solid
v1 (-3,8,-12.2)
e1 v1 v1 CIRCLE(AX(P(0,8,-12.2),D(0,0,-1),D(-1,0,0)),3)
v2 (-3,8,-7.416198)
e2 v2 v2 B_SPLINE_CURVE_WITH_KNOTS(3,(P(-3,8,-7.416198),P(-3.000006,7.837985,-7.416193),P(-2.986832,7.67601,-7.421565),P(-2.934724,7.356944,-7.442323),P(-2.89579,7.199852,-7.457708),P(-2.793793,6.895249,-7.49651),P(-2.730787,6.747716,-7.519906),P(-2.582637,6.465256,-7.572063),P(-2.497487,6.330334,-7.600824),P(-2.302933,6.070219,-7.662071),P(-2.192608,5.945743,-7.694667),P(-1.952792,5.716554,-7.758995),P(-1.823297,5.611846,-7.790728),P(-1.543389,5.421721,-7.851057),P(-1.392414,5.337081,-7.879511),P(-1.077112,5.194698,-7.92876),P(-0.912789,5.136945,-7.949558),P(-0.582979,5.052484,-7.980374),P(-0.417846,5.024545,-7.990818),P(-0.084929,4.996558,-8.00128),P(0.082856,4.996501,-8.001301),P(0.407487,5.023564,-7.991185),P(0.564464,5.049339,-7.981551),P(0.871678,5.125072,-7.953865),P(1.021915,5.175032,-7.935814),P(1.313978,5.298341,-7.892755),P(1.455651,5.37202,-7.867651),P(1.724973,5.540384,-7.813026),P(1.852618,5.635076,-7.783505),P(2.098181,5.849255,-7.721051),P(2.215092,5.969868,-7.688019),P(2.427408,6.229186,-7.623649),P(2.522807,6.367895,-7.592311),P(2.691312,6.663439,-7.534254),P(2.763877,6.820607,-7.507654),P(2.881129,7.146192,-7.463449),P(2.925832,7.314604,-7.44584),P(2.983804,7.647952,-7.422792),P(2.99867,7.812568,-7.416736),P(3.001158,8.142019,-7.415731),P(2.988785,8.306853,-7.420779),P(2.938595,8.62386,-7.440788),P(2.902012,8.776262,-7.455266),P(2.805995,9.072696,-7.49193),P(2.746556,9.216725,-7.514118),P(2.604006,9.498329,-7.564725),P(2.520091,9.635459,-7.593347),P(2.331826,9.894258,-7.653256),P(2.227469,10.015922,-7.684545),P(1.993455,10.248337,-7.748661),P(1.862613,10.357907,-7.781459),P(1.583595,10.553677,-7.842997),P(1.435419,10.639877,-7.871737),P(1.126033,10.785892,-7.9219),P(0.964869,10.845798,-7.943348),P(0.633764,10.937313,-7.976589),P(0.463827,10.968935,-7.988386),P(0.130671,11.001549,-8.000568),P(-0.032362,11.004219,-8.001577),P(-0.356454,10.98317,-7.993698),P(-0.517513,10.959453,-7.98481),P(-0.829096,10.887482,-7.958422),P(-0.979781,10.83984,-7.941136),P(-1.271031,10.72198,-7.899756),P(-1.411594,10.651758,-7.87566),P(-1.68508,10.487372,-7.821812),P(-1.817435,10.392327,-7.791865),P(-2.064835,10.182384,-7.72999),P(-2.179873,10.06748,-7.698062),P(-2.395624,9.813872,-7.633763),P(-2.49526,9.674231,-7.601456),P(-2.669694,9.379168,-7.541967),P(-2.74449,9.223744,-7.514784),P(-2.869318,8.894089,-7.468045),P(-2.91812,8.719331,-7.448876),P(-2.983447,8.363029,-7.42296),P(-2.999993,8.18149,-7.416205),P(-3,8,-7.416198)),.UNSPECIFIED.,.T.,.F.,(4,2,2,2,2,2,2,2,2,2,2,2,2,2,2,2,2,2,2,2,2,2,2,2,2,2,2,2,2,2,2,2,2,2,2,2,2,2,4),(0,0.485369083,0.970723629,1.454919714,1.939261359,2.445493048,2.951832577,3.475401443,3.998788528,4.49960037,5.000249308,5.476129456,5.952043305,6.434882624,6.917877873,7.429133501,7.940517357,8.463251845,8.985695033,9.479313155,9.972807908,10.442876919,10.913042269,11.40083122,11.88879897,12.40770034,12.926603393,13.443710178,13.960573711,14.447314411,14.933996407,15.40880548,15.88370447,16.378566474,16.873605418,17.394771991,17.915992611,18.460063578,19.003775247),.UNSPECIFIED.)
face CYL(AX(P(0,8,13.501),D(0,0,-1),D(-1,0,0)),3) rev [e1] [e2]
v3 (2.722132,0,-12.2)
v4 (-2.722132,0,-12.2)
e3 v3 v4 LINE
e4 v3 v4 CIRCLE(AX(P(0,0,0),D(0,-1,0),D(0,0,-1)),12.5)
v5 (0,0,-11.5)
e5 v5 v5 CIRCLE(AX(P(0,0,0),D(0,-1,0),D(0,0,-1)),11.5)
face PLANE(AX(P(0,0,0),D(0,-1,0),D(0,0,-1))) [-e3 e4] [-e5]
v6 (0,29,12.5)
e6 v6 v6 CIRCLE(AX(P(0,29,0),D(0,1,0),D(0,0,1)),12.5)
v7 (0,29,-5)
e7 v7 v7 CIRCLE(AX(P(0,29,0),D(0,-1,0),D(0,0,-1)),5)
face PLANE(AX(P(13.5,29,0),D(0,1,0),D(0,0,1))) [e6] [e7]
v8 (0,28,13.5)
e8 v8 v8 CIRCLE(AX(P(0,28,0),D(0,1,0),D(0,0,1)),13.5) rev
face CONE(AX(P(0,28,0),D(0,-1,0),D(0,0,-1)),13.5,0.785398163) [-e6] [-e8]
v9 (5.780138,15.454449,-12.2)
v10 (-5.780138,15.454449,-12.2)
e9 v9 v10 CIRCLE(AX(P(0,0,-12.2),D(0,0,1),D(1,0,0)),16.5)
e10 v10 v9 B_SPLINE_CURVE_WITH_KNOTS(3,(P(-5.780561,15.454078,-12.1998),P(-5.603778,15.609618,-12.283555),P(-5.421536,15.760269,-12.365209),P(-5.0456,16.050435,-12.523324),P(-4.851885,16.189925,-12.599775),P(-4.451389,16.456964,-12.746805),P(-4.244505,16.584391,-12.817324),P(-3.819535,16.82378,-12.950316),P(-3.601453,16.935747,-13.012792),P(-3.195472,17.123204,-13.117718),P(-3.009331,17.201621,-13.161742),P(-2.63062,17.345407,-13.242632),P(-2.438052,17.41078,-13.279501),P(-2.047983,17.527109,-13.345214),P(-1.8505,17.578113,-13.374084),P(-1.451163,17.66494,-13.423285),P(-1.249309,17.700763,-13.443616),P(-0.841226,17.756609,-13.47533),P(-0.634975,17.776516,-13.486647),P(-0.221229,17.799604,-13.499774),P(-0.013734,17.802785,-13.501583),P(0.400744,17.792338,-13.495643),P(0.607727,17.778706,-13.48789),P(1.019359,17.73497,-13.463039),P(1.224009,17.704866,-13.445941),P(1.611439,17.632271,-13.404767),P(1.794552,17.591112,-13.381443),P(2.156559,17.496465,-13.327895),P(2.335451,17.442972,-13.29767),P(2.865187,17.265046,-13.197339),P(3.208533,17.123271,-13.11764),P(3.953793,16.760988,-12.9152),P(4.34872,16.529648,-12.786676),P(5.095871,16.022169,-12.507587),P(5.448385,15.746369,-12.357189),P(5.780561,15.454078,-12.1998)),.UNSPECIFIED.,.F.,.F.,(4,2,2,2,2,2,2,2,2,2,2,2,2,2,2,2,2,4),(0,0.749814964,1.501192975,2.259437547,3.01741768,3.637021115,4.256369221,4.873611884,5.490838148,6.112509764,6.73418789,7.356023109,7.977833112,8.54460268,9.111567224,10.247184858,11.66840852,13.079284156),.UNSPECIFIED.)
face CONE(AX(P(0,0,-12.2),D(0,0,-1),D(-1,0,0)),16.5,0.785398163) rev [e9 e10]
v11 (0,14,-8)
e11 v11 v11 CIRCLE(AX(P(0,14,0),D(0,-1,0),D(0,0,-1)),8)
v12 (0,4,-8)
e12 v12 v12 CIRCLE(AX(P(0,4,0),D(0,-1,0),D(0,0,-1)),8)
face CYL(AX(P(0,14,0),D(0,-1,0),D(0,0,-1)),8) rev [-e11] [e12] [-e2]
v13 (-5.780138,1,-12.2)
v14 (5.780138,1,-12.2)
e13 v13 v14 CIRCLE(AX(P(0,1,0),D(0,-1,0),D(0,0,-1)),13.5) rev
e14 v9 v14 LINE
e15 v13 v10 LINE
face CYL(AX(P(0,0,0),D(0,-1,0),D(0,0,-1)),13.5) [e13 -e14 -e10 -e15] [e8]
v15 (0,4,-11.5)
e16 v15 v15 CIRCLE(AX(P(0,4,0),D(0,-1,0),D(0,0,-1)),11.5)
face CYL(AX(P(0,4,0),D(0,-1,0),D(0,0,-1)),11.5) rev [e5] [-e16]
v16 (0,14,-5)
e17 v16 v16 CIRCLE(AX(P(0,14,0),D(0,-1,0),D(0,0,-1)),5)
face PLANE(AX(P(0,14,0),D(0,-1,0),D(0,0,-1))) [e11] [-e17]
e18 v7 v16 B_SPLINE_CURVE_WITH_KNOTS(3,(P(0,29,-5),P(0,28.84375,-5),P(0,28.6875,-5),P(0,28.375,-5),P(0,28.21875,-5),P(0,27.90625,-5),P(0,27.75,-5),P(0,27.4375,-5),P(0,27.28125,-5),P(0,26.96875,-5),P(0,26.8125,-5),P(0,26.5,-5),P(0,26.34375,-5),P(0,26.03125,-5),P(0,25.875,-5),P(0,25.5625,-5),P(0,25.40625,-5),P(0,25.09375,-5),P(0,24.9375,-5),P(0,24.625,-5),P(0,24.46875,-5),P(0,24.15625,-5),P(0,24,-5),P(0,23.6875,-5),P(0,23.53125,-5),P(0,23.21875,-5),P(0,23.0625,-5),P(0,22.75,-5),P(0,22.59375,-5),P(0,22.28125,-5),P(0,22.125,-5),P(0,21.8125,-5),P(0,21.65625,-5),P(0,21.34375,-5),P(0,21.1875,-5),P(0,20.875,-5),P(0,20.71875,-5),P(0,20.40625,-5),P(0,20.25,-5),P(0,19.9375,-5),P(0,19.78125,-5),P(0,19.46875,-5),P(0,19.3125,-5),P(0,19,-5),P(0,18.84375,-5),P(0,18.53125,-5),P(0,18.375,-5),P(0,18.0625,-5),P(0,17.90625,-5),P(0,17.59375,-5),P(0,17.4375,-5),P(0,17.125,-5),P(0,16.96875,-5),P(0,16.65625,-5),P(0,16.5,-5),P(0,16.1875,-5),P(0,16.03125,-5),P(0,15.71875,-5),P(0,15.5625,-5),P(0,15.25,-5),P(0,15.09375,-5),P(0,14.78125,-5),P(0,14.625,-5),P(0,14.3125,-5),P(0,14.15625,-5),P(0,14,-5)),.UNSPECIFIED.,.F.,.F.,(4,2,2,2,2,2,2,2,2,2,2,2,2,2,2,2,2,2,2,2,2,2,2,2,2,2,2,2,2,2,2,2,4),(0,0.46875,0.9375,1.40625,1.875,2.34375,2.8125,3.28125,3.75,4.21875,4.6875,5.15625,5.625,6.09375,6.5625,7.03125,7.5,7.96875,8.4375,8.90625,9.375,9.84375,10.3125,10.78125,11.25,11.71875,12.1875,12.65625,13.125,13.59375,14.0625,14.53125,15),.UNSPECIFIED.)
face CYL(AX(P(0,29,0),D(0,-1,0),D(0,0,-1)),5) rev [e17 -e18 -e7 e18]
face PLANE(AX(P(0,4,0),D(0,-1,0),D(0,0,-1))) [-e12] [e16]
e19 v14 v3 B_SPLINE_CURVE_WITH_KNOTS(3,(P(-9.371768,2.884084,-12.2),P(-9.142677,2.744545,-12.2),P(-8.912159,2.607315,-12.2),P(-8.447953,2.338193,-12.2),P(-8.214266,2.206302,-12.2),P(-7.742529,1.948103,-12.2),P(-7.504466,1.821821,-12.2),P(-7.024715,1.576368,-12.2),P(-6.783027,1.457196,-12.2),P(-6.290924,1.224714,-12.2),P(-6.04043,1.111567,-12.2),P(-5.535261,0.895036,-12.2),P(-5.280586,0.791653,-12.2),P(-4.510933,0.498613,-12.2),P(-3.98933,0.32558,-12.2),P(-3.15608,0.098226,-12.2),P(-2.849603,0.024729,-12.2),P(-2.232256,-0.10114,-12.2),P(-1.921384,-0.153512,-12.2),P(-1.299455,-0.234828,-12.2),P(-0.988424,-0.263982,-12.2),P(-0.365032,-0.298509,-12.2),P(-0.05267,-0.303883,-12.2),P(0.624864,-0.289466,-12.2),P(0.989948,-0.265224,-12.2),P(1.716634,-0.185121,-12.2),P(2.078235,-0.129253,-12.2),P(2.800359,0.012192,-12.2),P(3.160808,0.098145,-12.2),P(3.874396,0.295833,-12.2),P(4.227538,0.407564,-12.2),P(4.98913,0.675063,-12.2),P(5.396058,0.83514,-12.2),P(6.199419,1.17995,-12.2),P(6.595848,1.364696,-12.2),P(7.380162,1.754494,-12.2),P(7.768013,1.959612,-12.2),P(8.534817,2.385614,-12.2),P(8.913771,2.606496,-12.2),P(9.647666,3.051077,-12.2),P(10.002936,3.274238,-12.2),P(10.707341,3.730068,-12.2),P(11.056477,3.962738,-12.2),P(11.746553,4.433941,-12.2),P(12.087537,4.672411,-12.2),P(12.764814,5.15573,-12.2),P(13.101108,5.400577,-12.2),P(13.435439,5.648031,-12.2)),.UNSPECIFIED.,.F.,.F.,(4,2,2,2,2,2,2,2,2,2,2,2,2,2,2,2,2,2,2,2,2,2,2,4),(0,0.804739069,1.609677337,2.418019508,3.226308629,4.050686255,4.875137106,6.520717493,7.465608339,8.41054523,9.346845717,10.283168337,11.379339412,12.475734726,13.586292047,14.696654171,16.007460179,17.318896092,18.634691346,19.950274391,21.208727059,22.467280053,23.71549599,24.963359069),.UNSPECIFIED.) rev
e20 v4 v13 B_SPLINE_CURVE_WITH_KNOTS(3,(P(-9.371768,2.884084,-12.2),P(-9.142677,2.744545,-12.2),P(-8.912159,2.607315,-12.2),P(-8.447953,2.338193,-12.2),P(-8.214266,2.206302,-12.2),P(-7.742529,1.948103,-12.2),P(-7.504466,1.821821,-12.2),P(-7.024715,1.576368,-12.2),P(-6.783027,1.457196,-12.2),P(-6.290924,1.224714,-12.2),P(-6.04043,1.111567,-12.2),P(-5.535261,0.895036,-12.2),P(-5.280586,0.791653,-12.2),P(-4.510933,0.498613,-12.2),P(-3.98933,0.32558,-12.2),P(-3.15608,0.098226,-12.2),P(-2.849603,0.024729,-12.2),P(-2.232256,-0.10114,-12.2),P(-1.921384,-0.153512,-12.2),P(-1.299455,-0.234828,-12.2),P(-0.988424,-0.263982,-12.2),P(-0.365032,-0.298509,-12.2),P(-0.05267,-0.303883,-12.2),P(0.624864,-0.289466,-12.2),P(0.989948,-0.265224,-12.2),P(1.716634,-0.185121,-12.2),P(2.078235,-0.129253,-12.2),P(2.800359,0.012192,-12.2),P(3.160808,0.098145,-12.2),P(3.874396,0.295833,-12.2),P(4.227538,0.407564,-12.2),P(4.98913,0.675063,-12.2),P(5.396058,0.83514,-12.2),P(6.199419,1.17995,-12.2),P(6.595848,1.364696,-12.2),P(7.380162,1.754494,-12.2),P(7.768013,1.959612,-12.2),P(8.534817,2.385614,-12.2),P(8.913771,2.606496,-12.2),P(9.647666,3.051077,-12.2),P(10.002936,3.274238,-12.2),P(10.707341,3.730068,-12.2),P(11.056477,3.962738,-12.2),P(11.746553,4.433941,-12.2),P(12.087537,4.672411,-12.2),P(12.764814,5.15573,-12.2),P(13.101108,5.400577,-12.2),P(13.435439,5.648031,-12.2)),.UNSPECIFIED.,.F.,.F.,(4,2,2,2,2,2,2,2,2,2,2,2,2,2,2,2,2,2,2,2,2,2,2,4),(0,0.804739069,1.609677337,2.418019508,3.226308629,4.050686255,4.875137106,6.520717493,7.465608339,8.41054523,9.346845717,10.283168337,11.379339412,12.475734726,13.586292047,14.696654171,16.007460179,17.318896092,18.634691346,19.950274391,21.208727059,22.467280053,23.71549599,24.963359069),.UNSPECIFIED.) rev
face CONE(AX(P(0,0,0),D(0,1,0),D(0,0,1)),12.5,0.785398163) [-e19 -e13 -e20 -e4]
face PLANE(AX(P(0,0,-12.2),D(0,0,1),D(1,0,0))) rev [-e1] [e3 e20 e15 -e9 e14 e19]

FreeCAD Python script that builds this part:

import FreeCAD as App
import Part
import Sketcher
from FreeCAD import Vector
Q = App.Units.Quantity


def edges_at(feature, points):
    """Names of the edges that pass closest to the given points."""
    edges = feature.Shape.Edges
    near = lambda p: min(range(len(edges)), key=lambda i: edges[i].distToShape(Part.Vertex(*p))[0])
    return sorted({f"Edge{near(p) + 1}" for p in points})

doc = App.newDocument("Part")
params = doc.addObject("Spreadsheet::Sheet", "Params")
for row, (alias, value) in enumerate([
    ("sketch1_height", "29 mm"),
    ("sketch1_width", "13.5 mm"),
    ("revolution_angle", "360 deg"),
    ("sketch2_diameter", "23 mm"),
    ("pocket1_length", "4 mm"),
    ("chamfer_size", "1 mm"),
    ("sketch3_height", "5 mm"),
    ("sketch3_width", "16.5 mm"),
    ("groove_angle", "360 deg"),
    ("sketch4_diameter", "16 mm"),
    ("pocket2_length", "10 mm"),
    ("sketch5_diameter", "10 mm"),
    ("sketch6_diameter", "6 mm"),
    ("pocket4_length", "4.783802 mm"),
], start=1):
    params.set(f"A{row}", alias)
    params.set(f"B{row}", "=" + value)
    params.setAlias(f"B{row}", alias)

body = doc.addObject("PartDesign::Body", "Body")

sketch1 = doc.addObject("Sketcher::SketchObject", "Sketch")
body.addObject(sketch1)
sketch1.AttachmentSupport = (doc.XY_Plane, [""])
sketch1.MapMode = "FlatFace"
sketch1.addGeometry([
    Part.LineSegment(Vector(0, 29, 0), Vector(0, 0, 0)),
    Part.LineSegment(Vector(0, 0, 0), Vector(14, 0, 0)),
    Part.LineSegment(Vector(14, 0, 0), Vector(14, 29, 0)),
    Part.LineSegment(Vector(14, 29, 0), Vector(0, 29, 0)),
], False)
sketch1.addConstraint([
    Sketcher.Constraint("Coincident", 0, 2, 1, 1),
    Sketcher.Constraint("Coincident", 1, 2, 2, 1),
    Sketcher.Constraint("Coincident", 2, 2, 3, 1),
    Sketcher.Constraint("Coincident", 3, 2, 0, 1),
    Sketcher.Constraint("Vertical", 0),
    Sketcher.Constraint("Horizontal", 1),
    Sketcher.Constraint("Vertical", 2),
    Sketcher.Constraint("Horizontal", 3),
    Sketcher.Constraint("Coincident", 0, 2, -1, 1),
    Sketcher.Constraint("DistanceY", 0, 2, 0, 1, 29.0),
    Sketcher.Constraint("DistanceX", 1, 1, 1, 2, 13.5),
])
sketch1.setExpression("Constraints[9]", "Params.sketch1_height")
sketch1.setExpression("Constraints[10]", "Params.sketch1_width")
revolution = doc.addObject("PartDesign::Revolution", "Revolution")
body.addObject(revolution)
revolution.Profile = sketch1
revolution.ReferenceAxis = (sketch1, ["V_Axis"])
revolution.setExpression("Angle", "Params.revolution_angle")

sketch2 = doc.addObject("Sketcher::SketchObject", "Sketch001")
body.addObject(sketch2)
sketch2.AttachmentSupport = (doc.XZ_Plane, [""])
sketch2.MapMode = "FlatFace"
sketch2.addGeometry(Part.Circle(Vector(0, 0, 0), Vector(0, 0, 1), 12), False)
sketch2.addConstraint([
    Sketcher.Constraint("Coincident", 0, 3, -1, 1),
    Sketcher.Constraint("Diameter", 0, 23.0),
])
sketch2.setExpression("Constraints[1]", "Params.sketch2_diameter")
pocket1 = doc.addObject("PartDesign::Pocket", "Pocket")
body.addObject(pocket1)
pocket1.Profile = sketch2
pocket1.setExpression("Length", "Params.pocket1_length")
doc.recompute()

chamfer = doc.addObject("PartDesign::Chamfer", "Chamfer")
body.addObject(chamfer)
chamfer.Base = (pocket1, edges_at(pocket1, [(0, 0, 13.5), (0, 29, 13.5)]))
chamfer.setExpression("Size", "Params.chamfer_size")

sketch3 = doc.addObject("Sketcher::SketchObject", "Sketch002")
body.addObject(sketch3)
sketch3.AttachmentSupport = (doc.XZ_Plane, [""])
sketch3.MapMode = "FlatFace"
sketch3.addGeometry([
    Part.LineSegment(Vector(0, -12, 0), Vector(16, -12, 0)),
    Part.LineSegment(Vector(16, -12, 0), Vector(22, -17, 0)),
    Part.LineSegment(Vector(22, -17, 0), Vector(0, -17, 0)),
    Part.LineSegment(Vector(0, -17, 0), Vector(0, -12, 0)),
], False)
sketch3.addConstraint([
    Sketcher.Constraint("Coincident", 0, 2, 1, 1),
    Sketcher.Constraint("Coincident", 1, 2, 2, 1),
    Sketcher.Constraint("Coincident", 2, 2, 3, 1),
    Sketcher.Constraint("Coincident", 3, 2, 0, 1),
    Sketcher.Constraint("Horizontal", 0),
    Sketcher.Constraint("Horizontal", 2),
    Sketcher.Constraint("Vertical", 3),
    Sketcher.Constraint("PointOnObject", 2, 2, -2),
    Sketcher.Constraint("DistanceY", 3, 1, 3, 2, 5.0),
    Sketcher.Constraint("Angle", 1, Q("-45 deg")),
    Sketcher.Constraint("DistanceX", 0, 1, 0, 2, 16.5),
    Sketcher.Constraint("DistanceY", 0, 2, -1, 1, 12.2),
])
sketch3.setExpression("Constraints[8]", "Params.sketch3_height")
sketch3.setExpression("Constraints[10]", "Params.sketch3_width")
groove = doc.addObject("PartDesign::Groove", "Groove")
body.addObject(groove)
groove.Profile = sketch3
groove.ReferenceAxis = (sketch3, ["V_Axis"])
groove.setExpression("Angle", "Params.groove_angle")

sketch4 = doc.addObject("Sketcher::SketchObject", "Sketch003")
body.addObject(sketch4)
sketch4.AttachmentSupport = (doc.XZ_Plane, [""])
sketch4.MapMode = "FlatFace"
sketch4.AttachmentOffset = App.Placement(Vector(0, 0, -4), App.Rotation())
sketch4.addGeometry(Part.Circle(Vector(0, 0, 0), Vector(0, 0, 1), 8), False)
sketch4.addConstraint([
    Sketcher.Constraint("Coincident", 0, 3, -1, 1),
    Sketcher.Constraint("Diameter", 0, 16.0),
])
sketch4.setExpression("Constraints[1]", "Params.sketch4_diameter")
pocket2 = doc.addObject("PartDesign::Pocket", "Pocket001")
body.addObject(pocket2)
pocket2.Profile = sketch4
pocket2.setExpression("Length", "Params.pocket2_length")

sketch5 = doc.addObject("Sketcher::SketchObject", "Sketch004")
body.addObject(sketch5)
sketch5.AttachmentSupport = (doc.XZ_Plane, [""])
sketch5.MapMode = "FlatFace"
sketch5.AttachmentOffset = App.Placement(Vector(0, 0, -14), App.Rotation())
sketch5.addGeometry(Part.Circle(Vector(0, 0, 0), Vector(0, 0, 1), 5), False)
sketch5.addConstraint([
    Sketcher.Constraint("Coincident", 0, 3, -1, 1),
    Sketcher.Constraint("Diameter", 0, 10.0),
])
sketch5.setExpression("Constraints[1]", "Params.sketch5_diameter")
pocket3 = doc.addObject("PartDesign::Pocket", "Pocket002")
body.addObject(pocket3)
pocket3.Profile = sketch5
pocket3.Type = "ThroughAll"

sketch6 = doc.addObject("Sketcher::SketchObject", "Sketch005")
body.addObject(sketch6)
sketch6.AttachmentSupport = (doc.XY_Plane, [""])
sketch6.MapMode = "FlatFace"
sketch6.AttachmentOffset = App.Placement(Vector(0, 0, -12.2), App.Rotation())
sketch6.addGeometry(Part.Circle(Vector(0, 8, 0), Vector(0, 0, 1), 3), False)
sketch6.addConstraint([
    Sketcher.Constraint("PointOnObject", 0, 3, -2),
    Sketcher.Constraint("Diameter", 0, 6.0),
    Sketcher.Constraint("DistanceY", -1, 1, 0, 3, 8.0),
])
sketch6.setExpression("Constraints[1]", "Params.sketch6_diameter")
pocket4 = doc.addObject("PartDesign::Pocket", "Pocket003")
body.addObject(pocket4)
pocket4.Profile = sketch6
pocket4.setExpression("Length", "Params.pocket4_length")
pocket4.Reversed = True

doc.recompute()
